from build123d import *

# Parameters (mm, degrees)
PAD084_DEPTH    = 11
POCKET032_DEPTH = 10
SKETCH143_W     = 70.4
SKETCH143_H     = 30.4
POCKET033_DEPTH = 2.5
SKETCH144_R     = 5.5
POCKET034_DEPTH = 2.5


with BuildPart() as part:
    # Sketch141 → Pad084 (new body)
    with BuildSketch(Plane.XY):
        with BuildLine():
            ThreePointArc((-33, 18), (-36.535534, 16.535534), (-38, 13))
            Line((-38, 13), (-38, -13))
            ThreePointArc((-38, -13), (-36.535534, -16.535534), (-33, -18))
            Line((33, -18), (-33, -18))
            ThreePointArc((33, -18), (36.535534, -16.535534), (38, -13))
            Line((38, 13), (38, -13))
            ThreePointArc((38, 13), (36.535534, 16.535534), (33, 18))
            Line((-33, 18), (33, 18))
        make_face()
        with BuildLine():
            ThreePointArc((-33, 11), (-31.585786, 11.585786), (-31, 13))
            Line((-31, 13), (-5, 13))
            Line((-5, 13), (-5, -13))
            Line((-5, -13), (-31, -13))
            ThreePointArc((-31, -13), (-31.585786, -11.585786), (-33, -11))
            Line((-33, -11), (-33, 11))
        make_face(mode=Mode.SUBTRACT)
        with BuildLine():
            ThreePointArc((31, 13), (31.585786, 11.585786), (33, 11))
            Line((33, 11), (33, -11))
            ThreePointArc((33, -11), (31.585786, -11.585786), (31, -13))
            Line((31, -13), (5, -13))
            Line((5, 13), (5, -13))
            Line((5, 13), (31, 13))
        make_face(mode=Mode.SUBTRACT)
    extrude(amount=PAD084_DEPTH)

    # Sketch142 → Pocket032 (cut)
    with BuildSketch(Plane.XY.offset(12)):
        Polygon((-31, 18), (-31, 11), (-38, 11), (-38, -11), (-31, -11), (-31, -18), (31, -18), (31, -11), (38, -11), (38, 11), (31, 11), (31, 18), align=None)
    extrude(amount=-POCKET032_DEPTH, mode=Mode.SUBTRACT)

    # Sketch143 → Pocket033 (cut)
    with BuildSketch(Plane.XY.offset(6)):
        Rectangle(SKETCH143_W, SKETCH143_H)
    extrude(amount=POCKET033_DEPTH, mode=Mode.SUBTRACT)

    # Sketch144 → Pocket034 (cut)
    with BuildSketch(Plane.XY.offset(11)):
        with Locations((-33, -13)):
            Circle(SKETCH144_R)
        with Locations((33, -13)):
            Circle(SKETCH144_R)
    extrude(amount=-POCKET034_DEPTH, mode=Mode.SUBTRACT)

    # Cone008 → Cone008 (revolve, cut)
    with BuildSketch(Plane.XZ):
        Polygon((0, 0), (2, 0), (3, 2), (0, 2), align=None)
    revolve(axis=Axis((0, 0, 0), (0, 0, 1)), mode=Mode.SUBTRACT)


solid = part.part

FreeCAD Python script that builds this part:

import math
import FreeCAD as App
import Part
import Sketcher
from FreeCAD import Vector

doc = App.newDocument("Part")
body = doc.addObject("PartDesign::Body", "Body")

# Sketch on XY plane
sketch1 = body.newObject("Sketcher::SketchObject", "Sketch")
sketch1.AttachmentSupport = (doc.getObject("XY_Plane"), [""])
sketch1.MapMode = "FlatFace"
sketch1.addGeometry([
    Part.ArcOfCircle(Part.Circle(Vector(-33, 13, 0), Vector(0, 0, 1), 5), math.radians(89.999996), math.radians(180.000004)),  # 0
    Part.LineSegment(Vector(-38, 13, 0), Vector(-38, -13, 0)),  # 1
    Part.ArcOfCircle(Part.Circle(Vector(-33, -13, 0), Vector(0, 0, 1), 5), math.radians(179.999996), math.radians(270.000004)),  # 2
    Part.LineSegment(Vector(-33, -18, 0), Vector(33, -18, 0)),  # 3
    Part.ArcOfCircle(Part.Circle(Vector(33, -13, 0), Vector(0, 0, 1), 5), math.radians(-90.000004), math.radians(0.000004)),  # 4
    Part.LineSegment(Vector(38, -13, 0), Vector(38, 13, 0)),  # 5
    Part.ArcOfCircle(Part.Circle(Vector(33, 13, 0), Vector(0, 0, 1), 5), math.radians(-0.000004), math.radians(90.000004)),  # 6
    Part.LineSegment(Vector(33, 18, 0), Vector(-33, 18, 0)),  # 7
    Part.LineSegment(Vector(-33, -11, 0), Vector(-33, 11, 0)),  # 8
    Part.ArcOfCircle(Part.Circle(Vector(-32.999999, 12.999999, 0), Vector(0, 0, 1), 1.999999), math.radians(-90.000043), math.radians(0.000043)),  # 9
    Part.LineSegment(Vector(-31, 13, 0), Vector(-5, 13, 0)),  # 10
    Part.LineSegment(Vector(-5, 13, 0), Vector(-5, -13, 0)),  # 11
    Part.LineSegment(Vector(-5, -13, 0), Vector(-31, -13, 0)),  # 12
    Part.ArcOfCircle(Part.Circle(Vector(-32.999999, -12.999999, 0), Vector(0, 0, 1), 1.999999), math.radians(-0.000043), math.radians(90.000043)),  # 13
    Part.LineSegment(Vector(5, 13, 0), Vector(31, 13, 0)),  # 14
    Part.ArcOfCircle(Part.Circle(Vector(32.999999, 12.999999, 0), Vector(0, 0, 1), 1.999999), math.radians(179.999957), math.radians(270.000043)),  # 15
    Part.LineSegment(Vector(33, 11, 0), Vector(33, -11, 0)),  # 16
    Part.ArcOfCircle(Part.Circle(Vector(32.999999, -12.999999, 0), Vector(0, 0, 1), 1.999999), math.radians(89.999957), math.radians(180.000043)),  # 17
    Part.LineSegment(Vector(31, -13, 0), Vector(5, -13, 0)),  # 18
    Part.LineSegment(Vector(5, -13, 0), Vector(5, 13, 0)),  # 19
], False)
sketch1.addConstraint([
    Sketcher.Constraint("Tangent", 0, 2, 1, 1),
    Sketcher.Constraint("Tangent", 1, 2, 2, 1),
    Sketcher.Constraint("Tangent", 2, 2, 3, 1),
    Sketcher.Constraint("Tangent", 3, 2, 4, 1),
    Sketcher.Constraint("Tangent", 4, 2, 5, 1),
    Sketcher.Constraint("Tangent", 5, 2, 6, 1),
    Sketcher.Constraint("Tangent", 6, 2, 7, 1),
    Sketcher.Constraint("Tangent", 7, 2, 0, 1),
    Sketcher.Constraint("Coincident", 8, 2, 9, 1),
    Sketcher.Constraint("Coincident", 9, 2, 10, 1),
    Sketcher.Constraint("Coincident", 10, 2, 11, 1),
    Sketcher.Constraint("Coincident", 11, 2, 12, 1),
    Sketcher.Constraint("Coincident", 12, 2, 13, 1),
    Sketcher.Constraint("Coincident", 13, 2, 8, 1),
    Sketcher.Constraint("Coincident", 14, 2, 15, 1),
    Sketcher.Constraint("Coincident", 15, 2, 16, 1),
    Sketcher.Constraint("Coincident", 16, 2, 17, 1),
    Sketcher.Constraint("Coincident", 17, 2, 18, 1),
    Sketcher.Constraint("Coincident", 18, 2, 19, 1),
    Sketcher.Constraint("Coincident", 19, 2, 14, 1),
    Sketcher.Constraint("Vertical", 1),
    Sketcher.Constraint("Horizontal", 3),
    Sketcher.Constraint("Vertical", 5),
    Sketcher.Constraint("Horizontal", 7),
    Sketcher.Constraint("Vertical", 8),
    Sketcher.Constraint("Horizontal", 10),
    Sketcher.Constraint("Vertical", 11),
    Sketcher.Constraint("Horizontal", 12),
    Sketcher.Constraint("Horizontal", 14),
    Sketcher.Constraint("Vertical", 16),
    Sketcher.Constraint("Horizontal", 18),
    Sketcher.Constraint("Vertical", 19),
    Sketcher.Constraint("Coincident", 9, 3, 0, 3),
    Sketcher.Constraint("Coincident", 13, 3, 2, 3),
    Sketcher.Constraint("Coincident", 15, 3, 6, 3),
    Sketcher.Constraint("Coincident", 17, 3, 4, 3),
    Sketcher.Constraint("Equal", 0, 2),
    Sketcher.Constraint("Equal", 2, 4),
    Sketcher.Constraint("Equal", 4, 6),
    Sketcher.Constraint("Equal", 9, 13),
    Sketcher.Constraint("Equal", 13, 15),
    Sketcher.Constraint("Equal", 15, 17),
    Sketcher.Constraint("Symmetric", 0, 3, 4, 3, -1, 1),
    Sketcher.Constraint("Symmetric", 10, 2, 18, 2, -1, 1),
    Sketcher.Constraint("Horizontal", 5, 2, 9, 2),
    Sketcher.Constraint("Horizontal", 4, 2, 11, 2),
    Sketcher.Constraint("Horizontal", 10, 2, 14, 2),
    Sketcher.Constraint("Vertical", 7, 2, 8, 2),
    Sketcher.Constraint("Vertical", 6, 2, 15, 2),
    Sketcher.Constraint("Equal", 18, 1),
    Sketcher.Constraint("Radius", 0, 5.0),
    Sketcher.Constraint("Radius", 9, 1.999999),
    Sketcher.Constraint("DistanceX", 3, 1, 3, 2, 66.0),
    Sketcher.Constraint("DistanceX", 10, 1, 10, 2, 26.0),
])
pad1 = body.newObject("PartDesign::Pad", "Pad")
pad1.Profile = sketch1
pad1.Length = 11

# Sketch on XY plane
sketch2 = body.newObject("Sketcher::SketchObject", "Sketch001")
sketch2.AttachmentSupport = (doc.getObject("XY_Plane"), [""])
sketch2.MapMode = "FlatFace"
sketch2.AttachmentOffset = App.Placement(Vector(0, 0, 12), App.Rotation())
sketch2.addGeometry([
    Part.LineSegment(Vector(-31, 18, 0), Vector(-31, 11, 0)),  # 0
    Part.LineSegment(Vector(-31, 11, 0), Vector(-38, 11, 0)),  # 1
    Part.LineSegment(Vector(-38, 11, 0), Vector(-38, -11, 0)),  # 2
    Part.LineSegment(Vector(-38, -11, 0), Vector(-31, -11, 0)),  # 3
    Part.LineSegment(Vector(-31, -11, 0), Vector(-31, -18, 0)),  # 4
    Part.LineSegment(Vector(-31, -18, 0), Vector(31, -18, 0)),  # 5
    Part.LineSegment(Vector(31, -18, 0), Vector(31, -11, 0)),  # 6
    Part.LineSegment(Vector(31, -11, 0), Vector(38, -11, 0)),  # 7
    Part.LineSegment(Vector(38, -11, 0), Vector(38, 11, 0)),  # 8
    Part.LineSegment(Vector(38, 11, 0), Vector(31, 11, 0)),  # 9
    Part.LineSegment(Vector(31, 11, 0), Vector(31, 18, 0)),  # 10
    Part.LineSegment(Vector(31, 18, 0), Vector(-31, 18, 0)),  # 11
], False)
sketch2.addConstraint([
    Sketcher.Constraint("Coincident", 0, 2, 1, 1),
    Sketcher.Constraint("Coincident", 1, 2, 2, 1),
    Sketcher.Constraint("Coincident", 2, 2, 3, 1),
    Sketcher.Constraint("Coincident", 3, 2, 4, 1),
    Sketcher.Constraint("Coincident", 4, 2, 5, 1),
    Sketcher.Constraint("Coincident", 5, 2, 6, 1),
    Sketcher.Constraint("Coincident", 6, 2, 7, 1),
    Sketcher.Constraint("Coincident", 7, 2, 8, 1),
    Sketcher.Constraint("Coincident", 8, 2, 9, 1),
    Sketcher.Constraint("Coincident", 9, 2, 10, 1),
    Sketcher.Constraint("Coincident", 10, 2, 11, 1),
    Sketcher.Constraint("Coincident", 11, 2, 0, 1),
    Sketcher.Constraint("Vertical", 0),
    Sketcher.Constraint("Horizontal", 1),
    Sketcher.Constraint("Vertical", 2),
    Sketcher.Constraint("Horizontal", 3),
    Sketcher.Constraint("Vertical", 4),
    Sketcher.Constraint("Horizontal", 5),
    Sketcher.Constraint("Vertical", 6),
    Sketcher.Constraint("Horizontal", 7),
    Sketcher.Constraint("Vertical", 8),
    Sketcher.Constraint("Horizontal", 9),
    Sketcher.Constraint("Vertical", 10),
    Sketcher.Constraint("Horizontal", 11),
    Sketcher.Constraint("Symmetric", 0, 2, 6, 2, -1, 1),
    Sketcher.Constraint("Symmetric", 2, 2, 8, 2, -1, 1),
    Sketcher.Constraint("Symmetric", 4, 2, 10, 2, -1, 1),
    Sketcher.Constraint("Symmetric", 3, 2, 6, 2, -2),
    Sketcher.Constraint("Equal", 9, 0),
    Sketcher.Constraint("DistanceX", 1, 2, 1, 1, 7.0),
    Sketcher.Constraint("DistanceX", 5, 1, 5, 2, 62.0),
    Sketcher.Constraint("DistanceY", 2, 2, 2, 1, 22.0),
])
pocket1 = body.newObject("PartDesign::Pocket", "Pocket")
pocket1.Profile = sketch2
pocket1.Length = 10

# Sketch on XY plane
sketch3 = body.newObject("Sketcher::SketchObject", "Sketch002")
sketch3.AttachmentSupport = (doc.getObject("XY_Plane"), [""])
sketch3.MapMode = "FlatFace"
sketch3.AttachmentOffset = App.Placement(Vector(0, 0, 6), App.Rotation())
sketch3.addGeometry([
    Part.LineSegment(Vector(-35.2, 15.2, 0), Vector(-35.2, -15.2, 0)),
    Part.LineSegment(Vector(-35.2, -15.2, 0), Vector(35.2, -15.2, 0)),
    Part.LineSegment(Vector(35.2, -15.2, 0), Vector(35.2, 15.2, 0)),
    Part.LineSegment(Vector(35.2, 15.2, 0), Vector(-35.2, 15.2, 0)),
], False)
sketch3.addConstraint([
    Sketcher.Constraint("Coincident", 0, 2, 1, 1),
    Sketcher.Constraint("Coincident", 1, 2, 2, 1),
    Sketcher.Constraint("Coincident", 2, 2, 3, 1),
    Sketcher.Constraint("Coincident", 3, 2, 0, 1),
    Sketcher.Constraint("Vertical", 0),
    Sketcher.Constraint("Horizontal", 1),
    Sketcher.Constraint("Vertical", 2),
    Sketcher.Constraint("Horizontal", 3),
    Sketcher.Constraint("Symmetric", 0, 2, 2, 2, -1, 1),
    Sketcher.Constraint("DistanceX", 1, 1, 1, 2, 70.4),
    Sketcher.Constraint("DistanceY", 0, 2, 0, 1, 30.4),
])
pocket2 = body.newObject("PartDesign::Pocket", "Pocket001")
pocket2.Profile = sketch3
pocket2.Length = 2.5
pocket2.Reversed = True

# Sketch on XY plane
sketch4 = body.newObject("Sketcher::SketchObject", "Sketch003")
sketch4.AttachmentSupport = (doc.getObject("XY_Plane"), [""])
sketch4.MapMode = "FlatFace"
sketch4.AttachmentOffset = App.Placement(Vector(0, 0, 11), App.Rotation())
sketch4.addGeometry([
    Part.Circle(Vector(-33, -13, 0), Vector(0, 0, 1), 5.5),
    Part.Circle(Vector(33, -13, 0), Vector(0, 0, 1), 5.5),
], False)
sketch4.addConstraint([
    Sketcher.Constraint("Equal", 0, 1),
    Sketcher.Constraint("Symmetric", 0, 3, 1, 3, -2),
    Sketcher.Constraint("Diameter", 0, 11.0),
    Sketcher.Constraint("DistanceX", 0, 3, -1, 1, 33.0),
    Sketcher.Constraint("DistanceY", 0, 3, -1, 1, 13.0),
])
pocket3 = body.newObject("PartDesign::Pocket", "Pocket002")
pocket3.Profile = sketch4
pocket3.Length = 2.5

# Sketch on XZ plane
sketch5 = body.newObject("Sketcher::SketchObject", "Sketch004")
sketch5.AttachmentSupport = (doc.getObject("XZ_Plane"), [""])
sketch5.MapMode = "FlatFace"
sketch5.addGeometry([
    Part.LineSegment(Vector(0, 0, 0), Vector(2, 0, 0)),
    Part.LineSegment(Vector(2, 0, 0), Vector(3, 2, 0)),
    Part.LineSegment(Vector(3, 2, 0), Vector(0, 2, 0)),
    Part.LineSegment(Vector(0, 2, 0), Vector(0, 0, 0)),
], False)
sketch5.addConstraint([
    Sketcher.Constraint("Coincident", 0, 2, 1, 1),
    Sketcher.Constraint("Coincident", 1, 2, 2, 1),
    Sketcher.Constraint("Coincident", 2, 2, 3, 1),
    Sketcher.Constraint("Coincident", 3, 2, 0, 1),
    Sketcher.Constraint("Horizontal", 0),
    Sketcher.Constraint("Horizontal", 2),
    Sketcher.Constraint("Vertical", 3),
    Sketcher.Constraint("Coincident", 3, 2, -1, 1),
    Sketcher.Constraint("Equal", 0, 3),
    Sketcher.Constraint("DistanceX", 0, 1, 0, 2, 2.0),
    Sketcher.Constraint("DistanceX", 2, 2, 2, 1, 3.0),
])
groove = body.newObject("PartDesign::Groove", "Groove")
groove.Profile = sketch5
groove.ReferenceAxis = (sketch5, ["V_Axis"])
groove.Angle = 360

doc.recompute()
